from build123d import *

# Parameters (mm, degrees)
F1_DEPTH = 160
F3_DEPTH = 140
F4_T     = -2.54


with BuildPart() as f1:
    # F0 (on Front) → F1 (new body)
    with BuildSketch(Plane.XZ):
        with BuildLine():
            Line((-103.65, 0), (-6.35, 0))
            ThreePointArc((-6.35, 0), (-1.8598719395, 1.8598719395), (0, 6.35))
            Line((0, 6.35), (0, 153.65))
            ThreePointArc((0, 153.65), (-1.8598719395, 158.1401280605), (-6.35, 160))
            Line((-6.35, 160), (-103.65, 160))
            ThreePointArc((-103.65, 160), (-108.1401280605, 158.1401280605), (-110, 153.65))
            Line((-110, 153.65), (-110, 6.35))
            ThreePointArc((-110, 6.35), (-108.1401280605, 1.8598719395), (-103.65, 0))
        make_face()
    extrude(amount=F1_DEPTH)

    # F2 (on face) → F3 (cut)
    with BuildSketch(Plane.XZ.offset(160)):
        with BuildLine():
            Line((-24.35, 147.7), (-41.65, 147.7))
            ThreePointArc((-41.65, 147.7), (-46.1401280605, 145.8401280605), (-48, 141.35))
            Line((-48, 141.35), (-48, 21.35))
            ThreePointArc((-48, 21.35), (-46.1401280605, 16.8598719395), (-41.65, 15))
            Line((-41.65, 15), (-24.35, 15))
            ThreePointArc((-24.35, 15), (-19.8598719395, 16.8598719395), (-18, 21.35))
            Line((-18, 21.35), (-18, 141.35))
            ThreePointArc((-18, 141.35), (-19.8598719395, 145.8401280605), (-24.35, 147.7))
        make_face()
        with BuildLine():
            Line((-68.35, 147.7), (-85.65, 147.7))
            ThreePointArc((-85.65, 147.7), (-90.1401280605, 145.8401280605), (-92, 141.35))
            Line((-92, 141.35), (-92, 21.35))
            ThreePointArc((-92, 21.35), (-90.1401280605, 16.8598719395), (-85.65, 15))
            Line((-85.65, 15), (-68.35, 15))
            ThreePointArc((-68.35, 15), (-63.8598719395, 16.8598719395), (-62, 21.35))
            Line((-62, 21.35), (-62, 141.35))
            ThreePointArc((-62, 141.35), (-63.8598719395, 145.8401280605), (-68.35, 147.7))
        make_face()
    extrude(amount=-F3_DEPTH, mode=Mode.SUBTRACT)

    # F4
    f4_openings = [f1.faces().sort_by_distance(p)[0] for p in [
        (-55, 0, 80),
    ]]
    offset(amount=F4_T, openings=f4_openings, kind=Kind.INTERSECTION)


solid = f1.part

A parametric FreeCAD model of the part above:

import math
import FreeCAD as App
import Part
import Sketcher
Q = App.Units.Quantity


def faces_at(feature, points):
    """Names of the faces that lie closest to the given points."""
    faces = feature.Shape.Faces
    near = lambda p: min(range(len(faces)), key=lambda i: faces[i].distToShape(Part.Vertex(*p))[0])
    return sorted({f"Face{near(p) + 1}" for p in points})

doc = App.newDocument("Part")
body = doc.addObject("PartDesign::Body", "Body")

sketch1 = body.newObject("Sketcher::SketchObject", "Sketch")
sketch1.AttachmentSupport = (doc.getObject("XZ_Plane"), [""])
sketch1.MapMode = "FlatFace"
sketch1.addGeometry(Part.LineSegment(App.Vector(-104, 0, 0), App.Vector(-6, 0, 0)), False)
sketch1.addGeometry(Part.ArcOfCircle(Part.Circle(App.Vector(-6, 6, 0), App.Vector(0, 0, 1), 6), math.radians(-90), math.radians(0)), False)
sketch1.addGeometry(Part.LineSegment(App.Vector(0, 6, 0), App.Vector(0, 154, 0)), False)
sketch1.addGeometry(Part.ArcOfCircle(Part.Circle(App.Vector(-6, 154, 0), App.Vector(0, 0, 1), 6), math.radians(0), math.radians(90)), False)
sketch1.addGeometry(Part.LineSegment(App.Vector(-6, 160, 0), App.Vector(-104, 160, 0)), False)
sketch1.addGeometry(Part.ArcOfCircle(Part.Circle(App.Vector(-104, 154, 0), App.Vector(0, 0, 1), 6), math.radians(90), math.radians(180)), False)
sketch1.addGeometry(Part.LineSegment(App.Vector(-110, 154, 0), App.Vector(-110, 6, 0)), False)
sketch1.addGeometry(Part.ArcOfCircle(Part.Circle(App.Vector(-104, 6, 0), App.Vector(0, 0, 1), 6), math.radians(180), math.radians(270)), False)
sketch1.addConstraint(Sketcher.Constraint("Tangent", 0, 2, 1, 1))
sketch1.addConstraint(Sketcher.Constraint("Tangent", 1, 2, 2, 1))
sketch1.addConstraint(Sketcher.Constraint("Tangent", 2, 2, 3, 1))
sketch1.addConstraint(Sketcher.Constraint("Tangent", 3, 2, 4, 1))
sketch1.addConstraint(Sketcher.Constraint("Tangent", 4, 2, 5, 1))
sketch1.addConstraint(Sketcher.Constraint("Tangent", 5, 2, 6, 1))
sketch1.addConstraint(Sketcher.Constraint("Tangent", 6, 2, 7, 1))
sketch1.addConstraint(Sketcher.Constraint("Tangent", 7, 2, 0, 1))
sketch1.addConstraint(Sketcher.Constraint("Horizontal", 0))
sketch1.addConstraint(Sketcher.Constraint("Vertical", 2))
sketch1.addConstraint(Sketcher.Constraint("Horizontal", 4))
sketch1.addConstraint(Sketcher.Constraint("Vertical", 6))
sketch1.addConstraint(Sketcher.Constraint("Equal", 1, 3))
sketch1.addConstraint(Sketcher.Constraint("Equal", 3, 5))
sketch1.addConstraint(Sketcher.Constraint("Equal", 5, 7))
sketch1.addConstraint(Sketcher.Constraint("PointOnObject", 0, 2, -1))
sketch1.addConstraint(Sketcher.Constraint("PointOnObject", 1, 2, -2))
sketch1.addConstraint(Sketcher.Constraint("Radius", 1, Q("6.35 mm")))
sketch1.addConstraint(Sketcher.Constraint("DistanceX", 0, 1, 0, 2, Q("97.3 mm")))
sketch1.addConstraint(Sketcher.Constraint("DistanceY", 2, 1, 2, 2, Q("147.3 mm")))
pad1 = body.newObject("PartDesign::Pad", "Pad")
pad1.Profile = sketch1
pad1.Length = 160

sketch2 = body.newObject("Sketcher::SketchObject", "Sketch001")
sketch2.AttachmentSupport = (doc.getObject("XZ_Plane"), [""])
sketch2.MapMode = "FlatFace"
sketch2.AttachmentOffset = App.Placement(App.Vector(0, 0, 160), App.Rotation())
sketch2.addGeometry(Part.LineSegment(App.Vector(-24, 148, 0), App.Vector(-42, 148, 0)), False)
sketch2.addGeometry(Part.ArcOfCircle(Part.Circle(App.Vector(-42, 141, 0), App.Vector(0, 0, 1), 6), math.radians(90), math.radians(180)), False)
sketch2.addGeometry(Part.LineSegment(App.Vector(-48, 141, 0), App.Vector(-48, 21, 0)), False)
sketch2.addGeometry(Part.ArcOfCircle(Part.Circle(App.Vector(-42, 21, 0), App.Vector(0, 0, 1), 6), math.radians(180), math.radians(270)), False)
sketch2.addGeometry(Part.LineSegment(App.Vector(-42, 15, 0), App.Vector(-24, 15, 0)), False)
sketch2.addGeometry(Part.ArcOfCircle(Part.Circle(App.Vector(-24, 21, 0), App.Vector(0, 0, 1), 6), math.radians(-90), math.radians(0)), False)
sketch2.addGeometry(Part.LineSegment(App.Vector(-18, 21, 0), App.Vector(-18, 141, 0)), False)
sketch2.addGeometry(Part.ArcOfCircle(Part.Circle(App.Vector(-24, 141, 0), App.Vector(0, 0, 1), 6), math.radians(0), math.radians(90)), False)
sketch2.addGeometry(Part.LineSegment(App.Vector(-68, 148, 0), App.Vector(-86, 148, 0)), False)
sketch2.addGeometry(Part.ArcOfCircle(Part.Circle(App.Vector(-86, 141, 0), App.Vector(0, 0, 1), 6), math.radians(90), math.radians(180)), False)
sketch2.addGeometry(Part.LineSegment(App.Vector(-92, 141, 0), App.Vector(-92, 21, 0)), False)
sketch2.addGeometry(Part.ArcOfCircle(Part.Circle(App.Vector(-86, 21, 0), App.Vector(0, 0, 1), 6), math.radians(180), math.radians(270)), False)
sketch2.addGeometry(Part.LineSegment(App.Vector(-86, 15, 0), App.Vector(-68, 15, 0)), False)
sketch2.addGeometry(Part.ArcOfCircle(Part.Circle(App.Vector(-68, 21, 0), App.Vector(0, 0, 1), 6), math.radians(-90), math.radians(0)), False)
sketch2.addGeometry(Part.LineSegment(App.Vector(-62, 21, 0), App.Vector(-62, 141, 0)), False)
sketch2.addGeometry(Part.ArcOfCircle(Part.Circle(App.Vector(-68, 141, 0), App.Vector(0, 0, 1), 6), math.radians(0), math.radians(90)), False)
sketch2.addConstraint(Sketcher.Constraint("Tangent", 0, 2, 1, 1))
sketch2.addConstraint(Sketcher.Constraint("Tangent", 1, 2, 2, 1))
sketch2.addConstraint(Sketcher.Constraint("Tangent", 2, 2, 3, 1))
sketch2.addConstraint(Sketcher.Constraint("Tangent", 3, 2, 4, 1))
sketch2.addConstraint(Sketcher.Constraint("Tangent", 4, 2, 5, 1))
sketch2.addConstraint(Sketcher.Constraint("Tangent", 5, 2, 6, 1))
sketch2.addConstraint(Sketcher.Constraint("Tangent", 6, 2, 7, 1))
sketch2.addConstraint(Sketcher.Constraint("Tangent", 7, 2, 0, 1))
sketch2.addConstraint(Sketcher.Constraint("Tangent", 8, 2, 9, 1))
sketch2.addConstraint(Sketcher.Constraint("Tangent", 9, 2, 10, 1))
sketch2.addConstraint(Sketcher.Constraint("Tangent", 10, 2, 11, 1))
sketch2.addConstraint(Sketcher.Constraint("Tangent", 11, 2, 12, 1))
sketch2.addConstraint(Sketcher.Constraint("Tangent", 12, 2, 13, 1))
sketch2.addConstraint(Sketcher.Constraint("Tangent", 13, 2, 14, 1))
sketch2.addConstraint(Sketcher.Constraint("Tangent", 14, 2, 15, 1))
sketch2.addConstraint(Sketcher.Constraint("Tangent", 15, 2, 8, 1))
sketch2.addConstraint(Sketcher.Constraint("Horizontal", 0))
sketch2.addConstraint(Sketcher.Constraint("Vertical", 2))
sketch2.addConstraint(Sketcher.Constraint("Horizontal", 4))
sketch2.addConstraint(Sketcher.Constraint("Vertical", 6))
sketch2.addConstraint(Sketcher.Constraint("Horizontal", 8))
sketch2.addConstraint(Sketcher.Constraint("Vertical", 10))
sketch2.addConstraint(Sketcher.Constraint("Horizontal", 12))
sketch2.addConstraint(Sketcher.Constraint("Vertical", 14))
sketch2.addConstraint(Sketcher.Constraint("Equal", 1, 3))
sketch2.addConstraint(Sketcher.Constraint("Equal", 3, 5))
sketch2.addConstraint(Sketcher.Constraint("Equal", 5, 7))
sketch2.addConstraint(Sketcher.Constraint("Equal", 7, 9))
sketch2.addConstraint(Sketcher.Constraint("Equal", 9, 11))
sketch2.addConstraint(Sketcher.Constraint("Equal", 11, 13))
sketch2.addConstraint(Sketcher.Constraint("Equal", 13, 15))
sketch2.addConstraint(Sketcher.Constraint("Horizontal", 7, 3, 9, 3))
sketch2.addConstraint(Sketcher.Constraint("Horizontal", 5, 3, 11, 3))
sketch2.addConstraint(Sketcher.Constraint("Equal", 4, 8))
sketch2.addConstraint(Sketcher.Constraint("DistanceY", 2, 2, 2, 1, Q("120 mm")))
sketch2.addConstraint(Sketcher.Constraint("Radius", 1, Q("6.35 mm")))
sketch2.addConstraint(Sketcher.Constraint("DistanceX", 0, 2, 0, 1, Q("17.3 mm")))
sketch2.addConstraint(Sketcher.Constraint("DistanceX", 1, 2, -1, 1, Q("48 mm")))
sketch2.addConstraint(Sketcher.Constraint("DistanceY", -1, 1, 3, 2, Q("15 mm")))
sketch2.addConstraint(Sketcher.Constraint("DistanceX", 9, 2, -1, 1, Q("92 mm")))
pocket1 = body.newObject("PartDesign::Pocket", "Pocket")
pocket1.Profile = sketch2
pocket1.Length = 140
doc.recompute()

thickness = body.newObject("PartDesign::Thickness", "Thickness")
thickness.Base = (pocket1, faces_at(pocket1, [(-55, 0, 80)]))
thickness.Value = 2.54
thickness.Reversed = True
thickness.Join = "Intersection"

doc.recompute()
